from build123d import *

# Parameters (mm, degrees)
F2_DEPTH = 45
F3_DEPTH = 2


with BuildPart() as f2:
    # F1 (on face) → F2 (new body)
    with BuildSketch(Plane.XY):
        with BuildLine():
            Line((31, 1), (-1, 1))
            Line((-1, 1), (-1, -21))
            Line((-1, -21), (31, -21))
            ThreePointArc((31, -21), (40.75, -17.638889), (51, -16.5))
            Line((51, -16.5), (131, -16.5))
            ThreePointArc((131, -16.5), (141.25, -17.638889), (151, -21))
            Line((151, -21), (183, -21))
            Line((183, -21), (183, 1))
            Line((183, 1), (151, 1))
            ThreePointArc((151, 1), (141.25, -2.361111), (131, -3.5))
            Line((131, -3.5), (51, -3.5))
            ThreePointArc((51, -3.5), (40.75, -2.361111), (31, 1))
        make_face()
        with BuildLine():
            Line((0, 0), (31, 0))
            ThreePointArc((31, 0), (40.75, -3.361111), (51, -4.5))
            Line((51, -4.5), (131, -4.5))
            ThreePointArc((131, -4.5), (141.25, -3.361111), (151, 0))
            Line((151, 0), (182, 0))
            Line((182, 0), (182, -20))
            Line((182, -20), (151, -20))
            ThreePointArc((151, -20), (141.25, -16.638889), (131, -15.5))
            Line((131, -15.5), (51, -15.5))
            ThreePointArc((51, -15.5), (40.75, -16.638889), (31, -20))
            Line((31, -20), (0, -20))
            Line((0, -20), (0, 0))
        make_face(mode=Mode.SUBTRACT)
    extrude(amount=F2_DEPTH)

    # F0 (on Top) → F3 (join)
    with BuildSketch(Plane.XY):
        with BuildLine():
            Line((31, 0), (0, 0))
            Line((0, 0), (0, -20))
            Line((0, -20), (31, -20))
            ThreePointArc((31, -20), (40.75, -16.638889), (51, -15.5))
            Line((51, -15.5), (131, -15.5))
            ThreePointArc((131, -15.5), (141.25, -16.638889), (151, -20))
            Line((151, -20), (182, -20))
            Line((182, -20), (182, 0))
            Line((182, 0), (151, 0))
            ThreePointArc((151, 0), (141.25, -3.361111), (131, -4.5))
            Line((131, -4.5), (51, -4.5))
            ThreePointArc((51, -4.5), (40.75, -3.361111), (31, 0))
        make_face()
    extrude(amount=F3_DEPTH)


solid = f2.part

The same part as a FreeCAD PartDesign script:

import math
import FreeCAD as App
import Part
import Sketcher
from FreeCAD import Vector
Q = App.Units.Quantity

doc = App.newDocument("Part")
body = doc.addObject("PartDesign::Body", "Body")

# Sketch on XY plane
sketch1 = body.newObject("Sketcher::SketchObject", "Sketch")
sketch1.AttachmentSupport = (doc.getObject("XY_Plane"), [""])
sketch1.MapMode = "FlatFace"
sketch1.addGeometry([
    Part.LineSegment(Vector(31, 1, 0), Vector(-1, 1, 0)),  # 0
    Part.LineSegment(Vector(-1, 1, 0), Vector(-1, -21, 0)),  # 1
    Part.LineSegment(Vector(-1, -21, 0), Vector(31, -21, 0)),  # 2
    Part.ArcOfCircle(Part.Circle(Vector(51, -63, 0), Vector(0, 0, 1), 47), math.radians(90), math.radians(115)),  # 3
    Part.LineSegment(Vector(51, -16, 0), Vector(131, -16, 0)),  # 4
    Part.ArcOfCircle(Part.Circle(Vector(131, -63, 0), Vector(0, 0, 1), 47), math.radians(65), math.radians(90)),  # 5
    Part.LineSegment(Vector(151, -21, 0), Vector(183, -21, 0)),  # 6
    Part.LineSegment(Vector(183, -21, 0), Vector(183, 1, 0)),  # 7
    Part.LineSegment(Vector(183, 1, 0), Vector(151, 1, 0)),  # 8
    Part.ArcOfCircle(Part.Circle(Vector(131, 43, 0), Vector(0, 0, 1), 47), math.radians(-90), math.radians(-65)),  # 9
    Part.LineSegment(Vector(131, -4, 0), Vector(51, -4, 0)),  # 10
    Part.ArcOfCircle(Part.Circle(Vector(51, 43, 0), Vector(0, 0, 1), 47), math.radians(-115), math.radians(-90)),  # 11
    Part.LineSegment(Vector(0, -20, 0), Vector(0, 0, 0)),  # 12
    Part.LineSegment(Vector(0, 0, 0), Vector(31, 0, 0)),  # 13
    Part.ArcOfCircle(Part.Circle(Vector(51, 42, 0), Vector(0, 0, 1), 47), math.radians(-115), math.radians(-90)),  # 14
    Part.LineSegment(Vector(51, -4, 0), Vector(131, -4, 0)),  # 15
    Part.ArcOfCircle(Part.Circle(Vector(131, 42, 0), Vector(0, 0, 1), 47), math.radians(-90), math.radians(-65)),  # 16
    Part.LineSegment(Vector(151, 0, 0), Vector(182, 0, 0)),  # 17
    Part.LineSegment(Vector(182, 0, 0), Vector(182, -20, 0)),  # 18
    Part.LineSegment(Vector(182, -20, 0), Vector(151, -20, 0)),  # 19
    Part.ArcOfCircle(Part.Circle(Vector(131, -62, 0), Vector(0, 0, 1), 47), math.radians(65), math.radians(90)),  # 20
    Part.LineSegment(Vector(131, -16, 0), Vector(51, -16, 0)),  # 21
    Part.ArcOfCircle(Part.Circle(Vector(51, -62, 0), Vector(0, 0, 1), 47), math.radians(90), math.radians(115)),  # 22
    Part.LineSegment(Vector(31, -20, 0), Vector(0, -20, 0)),  # 23
], False)
sketch1.addConstraint([
    Sketcher.Constraint("Coincident", 0, 2, 1, 1),
    Sketcher.Constraint("Coincident", 1, 2, 2, 1),
    Sketcher.Constraint("Coincident", 2, 2, 3, 2),
    Sketcher.Constraint("Tangent", 3, 1, 4, 1),
    Sketcher.Constraint("Tangent", 4, 2, 5, 2),
    Sketcher.Constraint("Coincident", 5, 1, 6, 1),
    Sketcher.Constraint("Coincident", 6, 2, 7, 1),
    Sketcher.Constraint("Coincident", 7, 2, 8, 1),
    Sketcher.Constraint("Coincident", 8, 2, 9, 2),
    Sketcher.Constraint("Tangent", 9, 1, 10, 1),
    Sketcher.Constraint("Tangent", 10, 2, 11, 2),
    Sketcher.Constraint("Coincident", 11, 1, 0, 1),
    Sketcher.Constraint("Coincident", 12, 2, 13, 1),
    Sketcher.Constraint("Coincident", 13, 2, 14, 1),
    Sketcher.Constraint("Tangent", 14, 2, 15, 1),
    Sketcher.Constraint("Tangent", 15, 2, 16, 1),
    Sketcher.Constraint("Coincident", 16, 2, 17, 1),
    Sketcher.Constraint("Coincident", 17, 2, 18, 1),
    Sketcher.Constraint("Coincident", 18, 2, 19, 1),
    Sketcher.Constraint("Coincident", 19, 2, 20, 1),
    Sketcher.Constraint("Tangent", 20, 2, 21, 1),
    Sketcher.Constraint("Tangent", 21, 2, 22, 1),
    Sketcher.Constraint("Coincident", 22, 2, 23, 1),
    Sketcher.Constraint("Coincident", 23, 2, 12, 1),
    Sketcher.Constraint("Horizontal", 0),
    Sketcher.Constraint("Vertical", 1),
    Sketcher.Constraint("Horizontal", 2),
    Sketcher.Constraint("Horizontal", 4),
    Sketcher.Constraint("Horizontal", 6),
    Sketcher.Constraint("Vertical", 7),
    Sketcher.Constraint("Horizontal", 8),
    Sketcher.Constraint("Horizontal", 10),
    Sketcher.Constraint("Vertical", 12),
    Sketcher.Constraint("Horizontal", 13),
    Sketcher.Constraint("Horizontal", 15),
    Sketcher.Constraint("Horizontal", 17),
    Sketcher.Constraint("Vertical", 18),
    Sketcher.Constraint("Horizontal", 19),
    Sketcher.Constraint("Horizontal", 21),
    Sketcher.Constraint("Horizontal", 23),
    Sketcher.Constraint("Coincident", 12, 2, -1, 1),
    Sketcher.Constraint("Equal", 3, 5),
    Sketcher.Constraint("Equal", 5, 9),
    Sketcher.Constraint("Equal", 9, 11),
    Sketcher.Constraint("Equal", 11, 14),
    Sketcher.Constraint("Equal", 14, 16),
    Sketcher.Constraint("Equal", 16, 20),
    Sketcher.Constraint("Equal", 20, 22),
    Sketcher.Constraint("PointOnObject", 16, 2, -1),
    Sketcher.Constraint("Horizontal", 2, 2, 5, 1),
    Sketcher.Constraint("Horizontal", 0, 2, 7, 2),
    Sketcher.Constraint("Horizontal", 19, 2, 22, 2),
    Sketcher.Constraint("Vertical", 5, 3, 9, 3),
    Sketcher.Constraint("Vertical", 3, 3, 11, 3),
    Sketcher.Constraint("Vertical", 11, 3, 14, 3),
    Sketcher.Constraint("Vertical", 9, 3, 16, 3),
    Sketcher.Constraint("Vertical", 16, 3, 20, 3),
    Sketcher.Constraint("Vertical", 14, 3, 22, 3),
    Sketcher.Constraint("Vertical", 5, 1, 8, 2),
    Sketcher.Constraint("Vertical", 11, 1, 13, 2),
    Sketcher.Constraint("Vertical", 16, 2, 19, 2),
    Sketcher.Constraint("Equal", 2, 6),
    Sketcher.Constraint("Equal", 13, 17),
    Sketcher.Constraint("DistanceX", 0, 2, 0, 1, Q("32 mm")),
    Sketcher.Constraint("DistanceX", 4, 1, 4, 2, Q("80 mm")),
    Sketcher.Constraint("DistanceX", 13, 1, 13, 2, Q("31 mm")),
    Sketcher.Constraint("DistanceY", 1, 2, 1, 1, Q("22 mm")),
    Sketcher.Constraint("DistanceY", 12, 1, 12, 2, Q("20 mm")),
    Sketcher.Constraint("DistanceX", -1, 1, 3, 3, Q("51.000001 mm")),
    Sketcher.Constraint("DistanceY", -1, 1, 0, 2, Q("1 mm")),
    Sketcher.Constraint("DistanceY", 4, 2, 9, 1, Q("13 mm")),
])
pad1 = body.newObject("PartDesign::Pad", "Pad")
pad1.Profile = sketch1
pad1.Length = 45

# Sketch on XY plane
sketch2 = body.newObject("Sketcher::SketchObject", "Sketch001")
sketch2.AttachmentSupport = (doc.getObject("XY_Plane"), [""])
sketch2.MapMode = "FlatFace"
sketch2.addGeometry([
    Part.LineSegment(Vector(31, 0, 0), Vector(0, 0, 0)),  # 0
    Part.LineSegment(Vector(0, 0, 0), Vector(0, -20, 0)),  # 1
    Part.LineSegment(Vector(0, -20, 0), Vector(31, -20, 0)),  # 2
    Part.ArcOfCircle(Part.Circle(Vector(51, -62, 0), Vector(0, 0, 1), 47), math.radians(90), math.radians(115)),  # 3
    Part.LineSegment(Vector(51, -16, 0), Vector(131, -16, 0)),  # 4
    Part.ArcOfCircle(Part.Circle(Vector(131, -62, 0), Vector(0, 0, 1), 47), math.radians(65), math.radians(90)),  # 5
    Part.LineSegment(Vector(151, -20, 0), Vector(182, -20, 0)),  # 6
    Part.LineSegment(Vector(182, -20, 0), Vector(182, 0, 0)),  # 7
    Part.LineSegment(Vector(182, 0, 0), Vector(151, 0, 0)),  # 8
    Part.ArcOfCircle(Part.Circle(Vector(131, 42, 0), Vector(0, 0, 1), 47), math.radians(-90), math.radians(-65)),  # 9
    Part.LineSegment(Vector(131, -4, 0), Vector(51, -4, 0)),  # 10
    Part.ArcOfCircle(Part.Circle(Vector(51, 42, 0), Vector(0, 0, 1), 47), math.radians(-115), math.radians(-90)),  # 11
], False)
sketch2.addConstraint([
    Sketcher.Constraint("Coincident", 0, 2, 1, 1),
    Sketcher.Constraint("Coincident", 1, 2, 2, 1),
    Sketcher.Constraint("Coincident", 2, 2, 3, 2),
    Sketcher.Constraint("Tangent", 3, 1, 4, 1),
    Sketcher.Constraint("Tangent", 4, 2, 5, 2),
    Sketcher.Constraint("Coincident", 5, 1, 6, 1),
    Sketcher.Constraint("Coincident", 6, 2, 7, 1),
    Sketcher.Constraint("Coincident", 7, 2, 8, 1),
    Sketcher.Constraint("Coincident", 8, 2, 9, 2),
    Sketcher.Constraint("Tangent", 9, 1, 10, 1),
    Sketcher.Constraint("Tangent", 10, 2, 11, 2),
    Sketcher.Constraint("Coincident", 11, 1, 0, 1),
    Sketcher.Constraint("Horizontal", 0),
    Sketcher.Constraint("Vertical", 1),
    Sketcher.Constraint("Horizontal", 2),
    Sketcher.Constraint("Horizontal", 4),
    Sketcher.Constraint("Horizontal", 6),
    Sketcher.Constraint("Vertical", 7),
    Sketcher.Constraint("Horizontal", 8),
    Sketcher.Constraint("Horizontal", 10),
    Sketcher.Constraint("Coincident", 0, 2, -1, 1),
    Sketcher.Constraint("Equal", 3, 5),
    Sketcher.Constraint("Equal", 5, 9),
    Sketcher.Constraint("Equal", 9, 11),
    Sketcher.Constraint("PointOnObject", 7, 2, -1),
    Sketcher.Constraint("Horizontal", 2, 2, 5, 1),
    Sketcher.Constraint("Vertical", 5, 3, 9, 3),
    Sketcher.Constraint("Vertical", 3, 3, 11, 3),
    Sketcher.Constraint("Vertical", 5, 1, 8, 2),
    Sketcher.Constraint("Equal", 2, 6),
    Sketcher.Constraint("DistanceX", 0, 2, 0, 1, Q("31 mm")),
    Sketcher.Constraint("DistanceX", 4, 1, 4, 2, Q("80 mm")),
    Sketcher.Constraint("DistanceY", 1, 2, 1, 1, Q("20 mm")),
    Sketcher.Constraint("DistanceX", -1, 1, 3, 3, Q("51.000001 mm")),
    Sketcher.Constraint("DistanceY", 4, 2, 9, 1, Q("11 mm")),
])
pad2 = body.newObject("PartDesign::Pad", "Pad001")
pad2.Profile = sketch2
pad2.Length = 2

doc.recompute()
